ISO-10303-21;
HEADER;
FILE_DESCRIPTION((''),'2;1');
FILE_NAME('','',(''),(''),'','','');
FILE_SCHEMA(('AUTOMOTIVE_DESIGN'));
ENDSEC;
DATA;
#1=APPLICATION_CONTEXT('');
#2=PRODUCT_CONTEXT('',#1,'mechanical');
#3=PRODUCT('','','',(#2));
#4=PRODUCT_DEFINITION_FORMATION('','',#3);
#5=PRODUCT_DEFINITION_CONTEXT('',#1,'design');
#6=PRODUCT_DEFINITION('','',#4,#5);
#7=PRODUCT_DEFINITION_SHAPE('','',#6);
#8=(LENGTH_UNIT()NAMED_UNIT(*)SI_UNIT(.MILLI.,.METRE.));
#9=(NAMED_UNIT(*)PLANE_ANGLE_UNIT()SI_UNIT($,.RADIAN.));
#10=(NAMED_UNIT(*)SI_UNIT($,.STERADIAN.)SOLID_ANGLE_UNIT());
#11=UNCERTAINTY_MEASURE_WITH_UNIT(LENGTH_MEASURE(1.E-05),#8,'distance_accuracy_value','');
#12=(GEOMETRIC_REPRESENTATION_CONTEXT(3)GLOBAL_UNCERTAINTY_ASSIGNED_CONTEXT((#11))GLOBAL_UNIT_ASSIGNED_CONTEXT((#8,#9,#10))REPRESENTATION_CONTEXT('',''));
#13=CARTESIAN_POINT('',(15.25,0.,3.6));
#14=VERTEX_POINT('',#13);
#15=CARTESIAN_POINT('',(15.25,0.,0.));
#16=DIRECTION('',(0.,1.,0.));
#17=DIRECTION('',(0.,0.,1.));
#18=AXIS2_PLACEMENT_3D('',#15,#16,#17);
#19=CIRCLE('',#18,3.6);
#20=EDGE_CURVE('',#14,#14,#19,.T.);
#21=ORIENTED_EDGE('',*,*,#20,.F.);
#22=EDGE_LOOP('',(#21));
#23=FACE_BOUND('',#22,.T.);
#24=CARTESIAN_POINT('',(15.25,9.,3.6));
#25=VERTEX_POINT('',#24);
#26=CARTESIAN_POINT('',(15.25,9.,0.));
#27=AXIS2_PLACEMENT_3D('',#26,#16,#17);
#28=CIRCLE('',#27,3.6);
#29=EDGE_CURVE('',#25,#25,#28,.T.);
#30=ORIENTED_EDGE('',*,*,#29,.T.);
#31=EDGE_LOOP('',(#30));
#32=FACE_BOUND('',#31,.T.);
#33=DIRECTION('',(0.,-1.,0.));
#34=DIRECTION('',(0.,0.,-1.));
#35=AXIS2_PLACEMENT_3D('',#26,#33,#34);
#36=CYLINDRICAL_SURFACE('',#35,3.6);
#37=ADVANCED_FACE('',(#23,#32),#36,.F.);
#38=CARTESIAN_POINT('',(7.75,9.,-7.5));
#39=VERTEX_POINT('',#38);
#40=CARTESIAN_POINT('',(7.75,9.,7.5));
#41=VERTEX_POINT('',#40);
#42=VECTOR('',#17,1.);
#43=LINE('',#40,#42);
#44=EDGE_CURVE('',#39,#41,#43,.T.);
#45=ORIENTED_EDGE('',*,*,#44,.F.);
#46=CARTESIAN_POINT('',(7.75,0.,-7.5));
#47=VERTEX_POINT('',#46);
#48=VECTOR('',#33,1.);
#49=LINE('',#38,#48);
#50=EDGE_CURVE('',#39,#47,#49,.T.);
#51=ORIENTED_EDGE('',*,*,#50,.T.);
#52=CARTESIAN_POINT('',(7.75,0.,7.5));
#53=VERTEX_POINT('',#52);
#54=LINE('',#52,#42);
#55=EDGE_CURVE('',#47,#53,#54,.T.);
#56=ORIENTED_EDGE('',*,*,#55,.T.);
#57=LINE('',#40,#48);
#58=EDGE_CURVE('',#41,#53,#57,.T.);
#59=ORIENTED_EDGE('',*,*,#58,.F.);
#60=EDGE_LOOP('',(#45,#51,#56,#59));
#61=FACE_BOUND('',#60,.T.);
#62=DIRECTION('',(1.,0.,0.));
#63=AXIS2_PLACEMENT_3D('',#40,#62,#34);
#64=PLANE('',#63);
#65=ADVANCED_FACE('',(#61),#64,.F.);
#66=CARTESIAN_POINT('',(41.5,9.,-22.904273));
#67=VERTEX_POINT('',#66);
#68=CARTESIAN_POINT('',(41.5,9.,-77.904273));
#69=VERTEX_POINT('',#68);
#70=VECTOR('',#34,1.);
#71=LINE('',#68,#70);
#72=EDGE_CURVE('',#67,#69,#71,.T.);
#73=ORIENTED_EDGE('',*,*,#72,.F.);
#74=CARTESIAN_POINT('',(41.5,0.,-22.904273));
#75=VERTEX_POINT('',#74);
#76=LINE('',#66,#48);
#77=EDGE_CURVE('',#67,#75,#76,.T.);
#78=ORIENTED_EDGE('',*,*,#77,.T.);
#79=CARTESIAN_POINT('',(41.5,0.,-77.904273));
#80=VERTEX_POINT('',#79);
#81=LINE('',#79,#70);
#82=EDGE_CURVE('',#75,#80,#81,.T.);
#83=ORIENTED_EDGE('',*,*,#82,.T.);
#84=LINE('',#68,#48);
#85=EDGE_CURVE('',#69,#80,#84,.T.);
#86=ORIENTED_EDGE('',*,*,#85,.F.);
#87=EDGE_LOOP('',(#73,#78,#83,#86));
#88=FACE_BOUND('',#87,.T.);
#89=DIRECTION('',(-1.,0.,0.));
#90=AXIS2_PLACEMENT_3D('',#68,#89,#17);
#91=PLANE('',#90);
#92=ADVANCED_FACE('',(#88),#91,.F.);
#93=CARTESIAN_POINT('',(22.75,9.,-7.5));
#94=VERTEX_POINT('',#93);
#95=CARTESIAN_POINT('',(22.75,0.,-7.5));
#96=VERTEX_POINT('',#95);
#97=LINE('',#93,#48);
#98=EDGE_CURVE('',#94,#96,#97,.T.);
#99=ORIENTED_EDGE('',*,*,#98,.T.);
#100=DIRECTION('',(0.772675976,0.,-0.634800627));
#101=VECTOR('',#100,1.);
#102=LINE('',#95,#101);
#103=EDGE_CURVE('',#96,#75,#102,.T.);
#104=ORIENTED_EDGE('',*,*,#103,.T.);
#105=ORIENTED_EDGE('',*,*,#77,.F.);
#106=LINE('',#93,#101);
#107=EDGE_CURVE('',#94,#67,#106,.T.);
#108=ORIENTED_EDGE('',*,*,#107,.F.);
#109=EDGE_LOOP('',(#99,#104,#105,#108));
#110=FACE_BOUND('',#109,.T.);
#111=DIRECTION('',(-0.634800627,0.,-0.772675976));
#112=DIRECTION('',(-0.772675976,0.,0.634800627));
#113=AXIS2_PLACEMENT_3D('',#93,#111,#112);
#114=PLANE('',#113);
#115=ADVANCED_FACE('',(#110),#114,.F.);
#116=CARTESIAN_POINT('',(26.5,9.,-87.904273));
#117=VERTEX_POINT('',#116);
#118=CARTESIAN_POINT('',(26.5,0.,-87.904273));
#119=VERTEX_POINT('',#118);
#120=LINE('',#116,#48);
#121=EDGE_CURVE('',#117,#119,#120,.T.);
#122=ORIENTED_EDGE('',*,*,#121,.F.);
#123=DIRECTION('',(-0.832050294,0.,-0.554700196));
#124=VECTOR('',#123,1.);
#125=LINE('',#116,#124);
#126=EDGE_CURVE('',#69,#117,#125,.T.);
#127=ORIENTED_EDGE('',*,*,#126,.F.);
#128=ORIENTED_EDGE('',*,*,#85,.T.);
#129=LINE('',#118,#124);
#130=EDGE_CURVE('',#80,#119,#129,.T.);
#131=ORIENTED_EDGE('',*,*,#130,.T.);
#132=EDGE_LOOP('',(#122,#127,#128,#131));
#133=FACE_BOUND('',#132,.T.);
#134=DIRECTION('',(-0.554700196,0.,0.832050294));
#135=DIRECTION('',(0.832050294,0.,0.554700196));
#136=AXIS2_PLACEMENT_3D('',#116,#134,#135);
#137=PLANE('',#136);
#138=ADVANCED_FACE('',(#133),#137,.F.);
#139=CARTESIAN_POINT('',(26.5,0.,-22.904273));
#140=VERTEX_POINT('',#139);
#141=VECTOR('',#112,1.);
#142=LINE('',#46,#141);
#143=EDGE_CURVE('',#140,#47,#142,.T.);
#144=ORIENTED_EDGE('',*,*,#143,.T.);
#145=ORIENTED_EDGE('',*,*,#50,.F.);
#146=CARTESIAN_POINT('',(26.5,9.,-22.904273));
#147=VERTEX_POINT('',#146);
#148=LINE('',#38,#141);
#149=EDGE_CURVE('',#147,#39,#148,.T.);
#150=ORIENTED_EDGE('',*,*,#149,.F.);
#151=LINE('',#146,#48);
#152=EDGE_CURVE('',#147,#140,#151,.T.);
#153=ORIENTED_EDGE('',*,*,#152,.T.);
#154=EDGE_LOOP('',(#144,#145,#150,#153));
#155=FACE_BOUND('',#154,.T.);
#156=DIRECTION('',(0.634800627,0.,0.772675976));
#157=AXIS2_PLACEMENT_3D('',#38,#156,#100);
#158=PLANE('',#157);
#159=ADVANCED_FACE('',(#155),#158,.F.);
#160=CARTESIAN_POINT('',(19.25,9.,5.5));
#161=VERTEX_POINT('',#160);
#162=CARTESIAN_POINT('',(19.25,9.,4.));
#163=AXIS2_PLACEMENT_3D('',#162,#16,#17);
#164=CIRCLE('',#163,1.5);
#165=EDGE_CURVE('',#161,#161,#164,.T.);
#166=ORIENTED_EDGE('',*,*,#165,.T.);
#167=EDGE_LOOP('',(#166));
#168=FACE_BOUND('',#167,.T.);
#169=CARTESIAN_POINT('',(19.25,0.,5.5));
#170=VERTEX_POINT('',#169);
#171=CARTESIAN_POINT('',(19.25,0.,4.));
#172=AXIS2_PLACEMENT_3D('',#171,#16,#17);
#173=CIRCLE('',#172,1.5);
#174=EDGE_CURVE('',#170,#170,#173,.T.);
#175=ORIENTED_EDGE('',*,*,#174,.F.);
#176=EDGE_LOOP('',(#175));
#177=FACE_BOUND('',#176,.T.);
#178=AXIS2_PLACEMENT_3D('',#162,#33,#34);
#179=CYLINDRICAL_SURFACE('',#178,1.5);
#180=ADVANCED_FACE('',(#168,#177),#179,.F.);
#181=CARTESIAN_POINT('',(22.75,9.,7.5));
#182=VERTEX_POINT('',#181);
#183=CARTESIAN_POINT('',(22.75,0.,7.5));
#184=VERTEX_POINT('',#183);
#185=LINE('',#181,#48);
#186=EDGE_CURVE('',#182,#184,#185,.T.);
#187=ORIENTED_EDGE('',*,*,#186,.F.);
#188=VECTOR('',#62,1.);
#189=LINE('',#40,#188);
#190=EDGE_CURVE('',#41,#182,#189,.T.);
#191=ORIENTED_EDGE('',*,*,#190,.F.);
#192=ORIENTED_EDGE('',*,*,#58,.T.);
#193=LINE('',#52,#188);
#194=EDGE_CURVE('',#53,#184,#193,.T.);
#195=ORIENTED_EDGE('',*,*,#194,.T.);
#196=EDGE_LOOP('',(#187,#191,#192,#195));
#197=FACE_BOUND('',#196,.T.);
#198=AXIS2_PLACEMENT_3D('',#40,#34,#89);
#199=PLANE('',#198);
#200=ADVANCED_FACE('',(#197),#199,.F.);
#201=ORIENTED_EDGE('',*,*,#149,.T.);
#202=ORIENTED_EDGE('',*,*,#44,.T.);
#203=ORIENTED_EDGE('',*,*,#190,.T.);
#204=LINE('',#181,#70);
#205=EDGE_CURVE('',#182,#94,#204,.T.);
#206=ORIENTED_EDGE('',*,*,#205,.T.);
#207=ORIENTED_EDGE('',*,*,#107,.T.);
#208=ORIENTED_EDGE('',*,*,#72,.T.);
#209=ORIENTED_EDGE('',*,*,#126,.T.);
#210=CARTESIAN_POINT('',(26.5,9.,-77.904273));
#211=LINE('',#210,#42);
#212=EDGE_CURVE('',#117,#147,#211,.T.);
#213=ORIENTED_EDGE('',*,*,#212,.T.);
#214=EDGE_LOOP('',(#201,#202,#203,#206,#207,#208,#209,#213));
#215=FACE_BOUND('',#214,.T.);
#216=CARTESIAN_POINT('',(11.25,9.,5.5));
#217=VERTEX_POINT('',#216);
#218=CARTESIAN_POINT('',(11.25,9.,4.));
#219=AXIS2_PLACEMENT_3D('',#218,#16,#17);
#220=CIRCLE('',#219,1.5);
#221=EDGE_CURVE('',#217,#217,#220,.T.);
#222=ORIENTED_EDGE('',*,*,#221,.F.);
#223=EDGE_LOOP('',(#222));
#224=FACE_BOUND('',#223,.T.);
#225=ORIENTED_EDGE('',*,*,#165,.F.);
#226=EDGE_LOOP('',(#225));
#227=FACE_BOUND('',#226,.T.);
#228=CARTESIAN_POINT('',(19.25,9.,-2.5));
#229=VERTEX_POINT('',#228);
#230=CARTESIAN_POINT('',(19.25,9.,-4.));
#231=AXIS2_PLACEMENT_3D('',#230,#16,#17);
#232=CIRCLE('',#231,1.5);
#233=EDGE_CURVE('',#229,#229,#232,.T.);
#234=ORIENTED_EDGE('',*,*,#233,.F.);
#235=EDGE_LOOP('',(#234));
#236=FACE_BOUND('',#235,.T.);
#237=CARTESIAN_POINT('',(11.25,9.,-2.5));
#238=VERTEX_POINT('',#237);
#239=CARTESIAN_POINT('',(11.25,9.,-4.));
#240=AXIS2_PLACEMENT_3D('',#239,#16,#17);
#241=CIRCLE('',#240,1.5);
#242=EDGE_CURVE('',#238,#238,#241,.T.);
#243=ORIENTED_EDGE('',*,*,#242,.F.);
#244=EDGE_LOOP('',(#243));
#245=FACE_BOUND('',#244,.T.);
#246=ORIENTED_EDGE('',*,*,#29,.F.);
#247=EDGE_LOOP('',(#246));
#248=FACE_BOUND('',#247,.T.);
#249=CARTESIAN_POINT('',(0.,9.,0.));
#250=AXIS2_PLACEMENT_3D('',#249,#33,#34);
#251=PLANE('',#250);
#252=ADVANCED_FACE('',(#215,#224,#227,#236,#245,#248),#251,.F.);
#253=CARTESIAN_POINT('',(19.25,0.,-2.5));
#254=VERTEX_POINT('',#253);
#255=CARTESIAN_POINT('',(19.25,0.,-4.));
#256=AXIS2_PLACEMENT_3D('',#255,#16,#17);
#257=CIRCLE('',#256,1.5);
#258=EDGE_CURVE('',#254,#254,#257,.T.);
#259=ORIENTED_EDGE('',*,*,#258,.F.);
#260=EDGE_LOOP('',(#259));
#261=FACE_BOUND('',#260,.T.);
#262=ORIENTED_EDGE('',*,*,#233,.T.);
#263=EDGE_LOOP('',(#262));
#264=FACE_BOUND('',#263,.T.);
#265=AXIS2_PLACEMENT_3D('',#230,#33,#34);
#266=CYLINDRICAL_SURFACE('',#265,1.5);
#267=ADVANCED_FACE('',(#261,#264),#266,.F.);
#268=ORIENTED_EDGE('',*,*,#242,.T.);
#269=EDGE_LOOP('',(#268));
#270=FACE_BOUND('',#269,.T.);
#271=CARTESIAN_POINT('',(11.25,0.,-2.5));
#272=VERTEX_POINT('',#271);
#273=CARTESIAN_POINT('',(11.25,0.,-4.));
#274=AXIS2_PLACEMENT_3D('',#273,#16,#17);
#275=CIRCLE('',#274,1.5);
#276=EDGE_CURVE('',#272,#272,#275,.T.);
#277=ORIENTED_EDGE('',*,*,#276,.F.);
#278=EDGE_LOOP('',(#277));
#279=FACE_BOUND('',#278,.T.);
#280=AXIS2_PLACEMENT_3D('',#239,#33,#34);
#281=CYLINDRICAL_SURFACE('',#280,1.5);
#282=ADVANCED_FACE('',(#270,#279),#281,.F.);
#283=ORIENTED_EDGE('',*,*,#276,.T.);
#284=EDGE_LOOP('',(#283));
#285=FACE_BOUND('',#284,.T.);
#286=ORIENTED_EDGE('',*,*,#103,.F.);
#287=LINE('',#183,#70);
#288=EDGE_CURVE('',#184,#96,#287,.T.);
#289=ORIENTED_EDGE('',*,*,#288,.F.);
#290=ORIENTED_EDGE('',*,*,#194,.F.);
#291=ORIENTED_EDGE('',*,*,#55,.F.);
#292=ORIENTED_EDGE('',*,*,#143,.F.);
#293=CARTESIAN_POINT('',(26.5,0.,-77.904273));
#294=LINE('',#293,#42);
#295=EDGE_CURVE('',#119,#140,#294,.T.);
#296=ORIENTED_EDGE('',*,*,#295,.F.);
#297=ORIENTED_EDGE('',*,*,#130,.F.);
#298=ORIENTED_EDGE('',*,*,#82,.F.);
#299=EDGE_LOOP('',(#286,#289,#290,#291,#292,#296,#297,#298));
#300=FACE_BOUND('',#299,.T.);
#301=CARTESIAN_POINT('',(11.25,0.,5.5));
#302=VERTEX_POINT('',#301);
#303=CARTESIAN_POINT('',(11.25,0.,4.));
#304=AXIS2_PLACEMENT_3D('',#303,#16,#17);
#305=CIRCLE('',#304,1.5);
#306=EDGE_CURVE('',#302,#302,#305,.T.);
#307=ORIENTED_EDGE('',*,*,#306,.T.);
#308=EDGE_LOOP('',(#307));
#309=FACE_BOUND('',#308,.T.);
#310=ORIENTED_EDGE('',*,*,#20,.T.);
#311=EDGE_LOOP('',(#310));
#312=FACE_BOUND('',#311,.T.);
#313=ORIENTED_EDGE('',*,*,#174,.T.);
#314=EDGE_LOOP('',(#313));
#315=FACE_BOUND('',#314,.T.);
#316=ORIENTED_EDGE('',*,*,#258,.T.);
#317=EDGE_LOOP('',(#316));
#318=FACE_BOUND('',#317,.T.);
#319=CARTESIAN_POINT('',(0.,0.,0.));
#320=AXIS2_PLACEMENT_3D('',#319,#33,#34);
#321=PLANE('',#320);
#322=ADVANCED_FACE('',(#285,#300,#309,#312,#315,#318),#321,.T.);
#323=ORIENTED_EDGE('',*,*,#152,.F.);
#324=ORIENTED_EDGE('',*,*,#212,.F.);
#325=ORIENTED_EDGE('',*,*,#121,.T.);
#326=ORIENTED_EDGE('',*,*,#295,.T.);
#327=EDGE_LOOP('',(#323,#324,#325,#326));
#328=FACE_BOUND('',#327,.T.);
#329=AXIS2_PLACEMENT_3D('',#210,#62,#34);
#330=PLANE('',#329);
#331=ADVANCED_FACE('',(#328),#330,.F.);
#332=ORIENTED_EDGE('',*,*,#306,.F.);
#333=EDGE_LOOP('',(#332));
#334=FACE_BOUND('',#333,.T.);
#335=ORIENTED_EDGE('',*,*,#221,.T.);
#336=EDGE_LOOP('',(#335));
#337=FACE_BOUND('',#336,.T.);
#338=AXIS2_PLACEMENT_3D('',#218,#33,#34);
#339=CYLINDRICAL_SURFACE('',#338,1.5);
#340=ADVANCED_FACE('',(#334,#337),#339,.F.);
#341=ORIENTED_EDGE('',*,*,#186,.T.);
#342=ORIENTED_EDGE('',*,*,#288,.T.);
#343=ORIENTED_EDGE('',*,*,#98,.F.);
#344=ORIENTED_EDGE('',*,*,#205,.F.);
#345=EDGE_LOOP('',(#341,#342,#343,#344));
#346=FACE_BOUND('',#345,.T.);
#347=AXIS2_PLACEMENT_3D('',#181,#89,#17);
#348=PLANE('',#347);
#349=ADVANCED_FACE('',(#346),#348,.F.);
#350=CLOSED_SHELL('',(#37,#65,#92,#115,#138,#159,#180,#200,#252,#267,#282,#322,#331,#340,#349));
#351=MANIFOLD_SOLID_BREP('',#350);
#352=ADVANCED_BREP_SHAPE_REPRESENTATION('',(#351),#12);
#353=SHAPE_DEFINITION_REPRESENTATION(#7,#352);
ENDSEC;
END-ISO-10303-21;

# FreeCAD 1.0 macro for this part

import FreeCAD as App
import Part
import Sketcher
Q = App.Units.Quantity

doc = App.newDocument("Part")
body = doc.addObject("PartDesign::Body", "Body")

# Sketch on XZ plane
sketch1 = body.newObject("Sketcher::SketchObject", "Sketch")
sketch1.AttachmentSupport = (doc.getObject("XZ_Plane"), [""])
sketch1.MapMode = "FlatFace"
sketch1.addGeometry([
    Part.LineSegment(App.Vector(26.5, -22.9, 0), App.Vector(7.8, -7.5, 0)),  # 0
    Part.LineSegment(App.Vector(7.8, -7.5, 0), App.Vector(7.8, 7.5, 0)),  # 1
    Part.LineSegment(App.Vector(7.8, 7.5, 0), App.Vector(22.8, 7.5, 0)),  # 2
    Part.LineSegment(App.Vector(22.8, 7.5, 0), App.Vector(22.8, -7.5, 0)),  # 3
    Part.LineSegment(App.Vector(22.8, -7.5, 0), App.Vector(41.5, -22.9, 0)),  # 4
    Part.LineSegment(App.Vector(41.5, -22.9, 0), App.Vector(41.5, -77.9, 0)),  # 5
    Part.LineSegment(App.Vector(41.5, -77.9, 0), App.Vector(26.5, -87.9, 0)),  # 6
    Part.LineSegment(App.Vector(26.5, -87.9, 0), App.Vector(26.5, -22.9, 0)),  # 7
    Part.Circle(App.Vector(19.2, 4, 0), App.Vector(0, 0, 1), 1.5),  # 8
    Part.Circle(App.Vector(11.2, 4, 0), App.Vector(0, 0, 1), 1.5),  # 9
    Part.Circle(App.Vector(19.2, -4, 0), App.Vector(0, 0, 1), 1.5),  # 10
    Part.Circle(App.Vector(15.2, 0, 0), App.Vector(0, 0, 1), 3.6),  # 11
    Part.Circle(App.Vector(11.2, -4, 0), App.Vector(0, 0, 1), 1.5),  # 12
], False)
sketch1.addConstraint([
    Sketcher.Constraint("Coincident", 0, 2, 1, 1),
    Sketcher.Constraint("Coincident", 1, 2, 2, 1),
    Sketcher.Constraint("Coincident", 2, 2, 3, 1),
    Sketcher.Constraint("Coincident", 3, 2, 4, 1),
    Sketcher.Constraint("Coincident", 4, 2, 5, 1),
    Sketcher.Constraint("Coincident", 5, 2, 6, 1),
    Sketcher.Constraint("Coincident", 6, 2, 7, 1),
    Sketcher.Constraint("Coincident", 7, 2, 0, 1),
    Sketcher.Constraint("Vertical", 1),
    Sketcher.Constraint("Horizontal", 2),
    Sketcher.Constraint("Vertical", 3),
    Sketcher.Constraint("Vertical", 5),
    Sketcher.Constraint("Vertical", 7),
    Sketcher.Constraint("Equal", 8, 9),
    Sketcher.Constraint("Equal", 9, 10),
    Sketcher.Constraint("Equal", 10, 12),
    Sketcher.Constraint("Symmetric", 8, 3, 10, 3, -1),
    Sketcher.Constraint("Symmetric", 9, 3, 12, 3, -1),
    Sketcher.Constraint("PointOnObject", 11, 3, -1),
    Sketcher.Constraint("Parallel", 0, 4),
    Sketcher.Constraint("Horizontal", 8, 3, 9, 3),
    Sketcher.Constraint("Horizontal", 0, 2, 3, 2),
    Sketcher.Constraint("Horizontal", 4, 2, 7, 2),
    Sketcher.Constraint("Equal", 2, 1),
    Sketcher.Constraint("Diameter", 8, Q("3 mm")),
    Sketcher.Constraint("Diameter", 11, Q("7.2 mm")),
    Sketcher.Constraint("DistanceX", 2, 1, 2, 2, Q("15 mm")),
    Sketcher.Constraint("DistanceY", 5, 2, 5, 1, Q("55 mm")),
    Sketcher.Constraint("DistanceY", 7, 1, 7, 2, Q("65 mm")),
    Sketcher.Constraint("DistanceY", -1, 1, 8, 3, Q("4 mm")),
    Sketcher.Constraint("DistanceX", 9, 3, 8, 3, Q("8 mm")),
    Sketcher.Constraint("DistanceX", 11, 3, 8, 3, Q("4 mm")),
    Sketcher.Constraint("DistanceY", 0, 2, -1, 1, Q("7.5 mm")),
    Sketcher.Constraint("DistanceX", -1, 1, 4, 2, Q("41.5 mm")),
    Sketcher.Constraint("DistanceX", 0, 2, 12, 3, Q("3.5 mm")),
    Sketcher.Constraint("DistanceX", -1, 1, 8, 3, Q("19.25 mm")),
    Sketcher.Constraint("Distance", 0, Q("24.266317 mm")),
])
pad1 = body.newObject("PartDesign::Pad", "Pad")
pad1.Profile = sketch1
pad1.Length = 9
pad1.Reversed = True

doc.recompute()
